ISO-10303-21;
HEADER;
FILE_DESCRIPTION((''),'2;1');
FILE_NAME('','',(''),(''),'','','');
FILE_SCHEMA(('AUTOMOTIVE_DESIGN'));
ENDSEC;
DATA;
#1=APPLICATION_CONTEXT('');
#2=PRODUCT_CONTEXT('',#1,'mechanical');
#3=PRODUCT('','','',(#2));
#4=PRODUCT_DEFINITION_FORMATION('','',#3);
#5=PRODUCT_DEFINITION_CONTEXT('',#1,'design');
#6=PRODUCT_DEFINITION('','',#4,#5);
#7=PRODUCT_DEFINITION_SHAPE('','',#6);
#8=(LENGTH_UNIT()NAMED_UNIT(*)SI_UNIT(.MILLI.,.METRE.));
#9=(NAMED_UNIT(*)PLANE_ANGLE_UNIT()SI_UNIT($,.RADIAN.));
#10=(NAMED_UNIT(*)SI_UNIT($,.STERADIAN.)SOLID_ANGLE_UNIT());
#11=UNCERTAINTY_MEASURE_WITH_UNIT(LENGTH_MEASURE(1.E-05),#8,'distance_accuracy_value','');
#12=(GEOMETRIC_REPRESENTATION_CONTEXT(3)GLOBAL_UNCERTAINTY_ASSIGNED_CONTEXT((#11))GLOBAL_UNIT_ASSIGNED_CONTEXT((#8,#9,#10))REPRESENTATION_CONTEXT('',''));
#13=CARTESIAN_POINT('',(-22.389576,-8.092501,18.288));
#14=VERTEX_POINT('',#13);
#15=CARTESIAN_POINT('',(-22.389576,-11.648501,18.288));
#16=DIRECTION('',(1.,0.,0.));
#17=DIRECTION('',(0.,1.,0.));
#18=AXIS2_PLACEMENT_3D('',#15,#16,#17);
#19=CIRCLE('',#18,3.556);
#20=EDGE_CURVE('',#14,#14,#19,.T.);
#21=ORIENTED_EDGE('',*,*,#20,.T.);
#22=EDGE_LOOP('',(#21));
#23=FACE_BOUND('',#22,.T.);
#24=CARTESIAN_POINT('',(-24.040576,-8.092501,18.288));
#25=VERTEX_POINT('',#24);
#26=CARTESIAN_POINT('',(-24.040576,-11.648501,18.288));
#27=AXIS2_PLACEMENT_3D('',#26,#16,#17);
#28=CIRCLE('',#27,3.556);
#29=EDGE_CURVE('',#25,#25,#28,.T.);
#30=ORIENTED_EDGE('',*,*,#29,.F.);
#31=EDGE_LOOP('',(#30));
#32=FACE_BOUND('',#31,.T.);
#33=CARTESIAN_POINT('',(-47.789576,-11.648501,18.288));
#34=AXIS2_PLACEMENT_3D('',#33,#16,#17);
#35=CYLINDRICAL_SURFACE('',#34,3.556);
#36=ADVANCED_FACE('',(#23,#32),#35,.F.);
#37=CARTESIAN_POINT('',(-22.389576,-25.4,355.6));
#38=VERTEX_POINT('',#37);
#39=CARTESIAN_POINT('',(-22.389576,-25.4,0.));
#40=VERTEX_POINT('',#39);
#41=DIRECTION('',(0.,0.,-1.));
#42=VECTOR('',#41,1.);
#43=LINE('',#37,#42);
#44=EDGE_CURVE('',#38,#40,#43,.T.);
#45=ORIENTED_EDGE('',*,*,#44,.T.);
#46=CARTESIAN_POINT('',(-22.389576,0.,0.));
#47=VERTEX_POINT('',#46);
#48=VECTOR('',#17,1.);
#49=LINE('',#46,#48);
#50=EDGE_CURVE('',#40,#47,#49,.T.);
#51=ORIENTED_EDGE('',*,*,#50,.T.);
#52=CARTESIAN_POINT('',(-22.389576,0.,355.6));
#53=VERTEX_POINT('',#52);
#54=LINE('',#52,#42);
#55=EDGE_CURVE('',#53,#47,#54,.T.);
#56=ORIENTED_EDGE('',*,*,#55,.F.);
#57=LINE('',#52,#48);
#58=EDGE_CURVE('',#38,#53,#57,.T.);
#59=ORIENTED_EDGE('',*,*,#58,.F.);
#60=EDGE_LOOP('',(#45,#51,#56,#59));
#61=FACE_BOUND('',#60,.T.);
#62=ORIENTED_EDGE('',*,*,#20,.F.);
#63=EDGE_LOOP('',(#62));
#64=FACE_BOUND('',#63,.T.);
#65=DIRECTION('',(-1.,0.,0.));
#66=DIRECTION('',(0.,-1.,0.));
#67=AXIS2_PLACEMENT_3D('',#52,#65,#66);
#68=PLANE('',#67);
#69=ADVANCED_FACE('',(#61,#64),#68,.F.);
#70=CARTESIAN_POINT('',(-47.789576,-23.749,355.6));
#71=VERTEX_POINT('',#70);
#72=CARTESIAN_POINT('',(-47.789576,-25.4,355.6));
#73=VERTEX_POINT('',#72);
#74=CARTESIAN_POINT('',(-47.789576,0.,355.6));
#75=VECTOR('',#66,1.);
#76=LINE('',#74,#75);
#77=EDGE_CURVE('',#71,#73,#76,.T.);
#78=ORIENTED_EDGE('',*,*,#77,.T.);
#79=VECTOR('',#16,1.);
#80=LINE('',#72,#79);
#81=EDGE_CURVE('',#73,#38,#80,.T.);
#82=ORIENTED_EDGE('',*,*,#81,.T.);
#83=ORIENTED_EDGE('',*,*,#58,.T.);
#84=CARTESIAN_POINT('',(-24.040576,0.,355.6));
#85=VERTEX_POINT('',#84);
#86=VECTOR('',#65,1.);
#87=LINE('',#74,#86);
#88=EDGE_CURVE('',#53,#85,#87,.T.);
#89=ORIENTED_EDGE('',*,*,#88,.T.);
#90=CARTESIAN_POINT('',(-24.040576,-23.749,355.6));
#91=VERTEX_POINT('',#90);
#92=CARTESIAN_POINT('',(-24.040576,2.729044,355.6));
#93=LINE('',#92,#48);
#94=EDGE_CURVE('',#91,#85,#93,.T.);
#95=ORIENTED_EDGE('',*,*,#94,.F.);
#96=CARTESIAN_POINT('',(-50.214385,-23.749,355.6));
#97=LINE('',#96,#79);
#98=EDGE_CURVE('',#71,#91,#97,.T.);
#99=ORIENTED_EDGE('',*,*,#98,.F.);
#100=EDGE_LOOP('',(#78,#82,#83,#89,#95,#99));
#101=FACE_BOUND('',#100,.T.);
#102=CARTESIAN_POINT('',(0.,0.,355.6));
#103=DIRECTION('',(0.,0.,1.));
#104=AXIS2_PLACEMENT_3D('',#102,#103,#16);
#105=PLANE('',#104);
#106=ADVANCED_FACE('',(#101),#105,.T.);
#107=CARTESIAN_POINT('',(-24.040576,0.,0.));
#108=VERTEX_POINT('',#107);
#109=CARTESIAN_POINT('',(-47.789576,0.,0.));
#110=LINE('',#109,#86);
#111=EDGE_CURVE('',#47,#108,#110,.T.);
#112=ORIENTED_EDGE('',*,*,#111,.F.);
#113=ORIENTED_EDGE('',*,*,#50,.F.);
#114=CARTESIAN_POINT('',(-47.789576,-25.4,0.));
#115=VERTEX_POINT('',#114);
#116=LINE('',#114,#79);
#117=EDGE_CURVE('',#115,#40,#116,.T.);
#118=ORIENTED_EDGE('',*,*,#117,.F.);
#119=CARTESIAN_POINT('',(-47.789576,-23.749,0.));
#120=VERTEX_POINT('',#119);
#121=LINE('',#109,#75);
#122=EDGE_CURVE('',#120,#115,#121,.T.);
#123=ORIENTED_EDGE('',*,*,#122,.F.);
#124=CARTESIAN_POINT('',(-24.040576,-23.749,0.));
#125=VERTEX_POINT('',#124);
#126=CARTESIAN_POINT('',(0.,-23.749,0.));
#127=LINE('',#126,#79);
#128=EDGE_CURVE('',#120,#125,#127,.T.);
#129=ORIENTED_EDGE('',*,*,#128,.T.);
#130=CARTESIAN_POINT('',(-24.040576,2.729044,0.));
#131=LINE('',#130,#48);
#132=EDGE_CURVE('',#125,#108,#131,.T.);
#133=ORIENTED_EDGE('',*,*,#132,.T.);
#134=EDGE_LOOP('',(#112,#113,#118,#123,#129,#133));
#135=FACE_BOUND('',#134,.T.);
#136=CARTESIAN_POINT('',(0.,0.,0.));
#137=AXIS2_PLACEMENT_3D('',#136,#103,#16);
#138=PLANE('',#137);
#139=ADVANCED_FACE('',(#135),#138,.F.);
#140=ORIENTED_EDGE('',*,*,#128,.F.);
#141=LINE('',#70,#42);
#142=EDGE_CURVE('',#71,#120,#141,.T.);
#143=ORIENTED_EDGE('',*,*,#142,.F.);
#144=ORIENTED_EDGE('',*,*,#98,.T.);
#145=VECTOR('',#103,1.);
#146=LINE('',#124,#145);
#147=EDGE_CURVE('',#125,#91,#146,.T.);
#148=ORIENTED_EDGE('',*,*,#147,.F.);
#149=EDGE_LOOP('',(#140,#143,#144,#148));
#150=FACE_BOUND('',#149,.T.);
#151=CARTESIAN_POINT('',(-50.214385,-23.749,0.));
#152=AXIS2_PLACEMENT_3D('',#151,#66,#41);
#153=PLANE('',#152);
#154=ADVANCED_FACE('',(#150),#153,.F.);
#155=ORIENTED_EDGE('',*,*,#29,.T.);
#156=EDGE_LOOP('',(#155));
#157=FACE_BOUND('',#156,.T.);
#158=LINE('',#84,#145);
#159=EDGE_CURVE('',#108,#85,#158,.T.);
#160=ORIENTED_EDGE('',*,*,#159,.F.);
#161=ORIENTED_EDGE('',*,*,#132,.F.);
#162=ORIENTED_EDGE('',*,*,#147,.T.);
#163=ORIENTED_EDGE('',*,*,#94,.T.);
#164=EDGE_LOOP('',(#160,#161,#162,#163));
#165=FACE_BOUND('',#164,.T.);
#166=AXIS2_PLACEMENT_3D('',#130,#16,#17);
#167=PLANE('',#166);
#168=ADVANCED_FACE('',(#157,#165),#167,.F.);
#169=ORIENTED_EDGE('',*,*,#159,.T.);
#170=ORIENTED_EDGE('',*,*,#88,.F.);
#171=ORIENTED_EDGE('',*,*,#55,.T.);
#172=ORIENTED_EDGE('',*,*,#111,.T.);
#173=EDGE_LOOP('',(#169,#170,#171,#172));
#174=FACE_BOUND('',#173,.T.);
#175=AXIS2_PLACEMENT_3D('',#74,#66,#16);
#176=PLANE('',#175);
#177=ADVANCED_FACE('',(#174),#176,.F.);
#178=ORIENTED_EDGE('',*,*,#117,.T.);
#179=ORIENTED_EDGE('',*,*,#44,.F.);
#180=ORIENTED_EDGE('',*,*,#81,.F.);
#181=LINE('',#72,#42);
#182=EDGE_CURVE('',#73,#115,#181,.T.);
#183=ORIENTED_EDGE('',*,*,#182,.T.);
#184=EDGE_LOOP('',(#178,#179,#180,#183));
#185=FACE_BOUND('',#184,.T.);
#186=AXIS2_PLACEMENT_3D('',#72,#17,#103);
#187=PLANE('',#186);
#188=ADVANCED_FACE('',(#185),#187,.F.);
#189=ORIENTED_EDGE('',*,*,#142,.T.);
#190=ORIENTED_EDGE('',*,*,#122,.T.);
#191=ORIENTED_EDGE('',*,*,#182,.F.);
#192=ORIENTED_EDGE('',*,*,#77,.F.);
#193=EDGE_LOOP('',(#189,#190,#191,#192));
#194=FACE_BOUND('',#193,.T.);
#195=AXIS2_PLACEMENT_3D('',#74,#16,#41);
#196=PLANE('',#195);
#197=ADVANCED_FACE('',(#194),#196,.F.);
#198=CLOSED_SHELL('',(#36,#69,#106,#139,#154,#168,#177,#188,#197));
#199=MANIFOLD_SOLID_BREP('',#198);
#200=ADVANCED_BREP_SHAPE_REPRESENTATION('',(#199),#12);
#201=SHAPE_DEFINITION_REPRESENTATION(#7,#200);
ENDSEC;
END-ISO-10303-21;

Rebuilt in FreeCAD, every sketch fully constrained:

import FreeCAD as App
import Part
import Sketcher
from FreeCAD import Vector
Q = App.Units.Quantity


def add_polygon(sketch, points):
    """Adds a closed chain of lines whose ends are joined by coincident constraints."""
    first, n = sketch.GeometryCount, len(points)
    for a, b in zip(points, points[1:] + points[:1]):
        sketch.addGeometry(Part.LineSegment(App.Vector(*a, 0), App.Vector(*b, 0)), False)
    for i in range(n):
        sketch.addConstraint(Sketcher.Constraint("Coincident", first + i, 2, first + (i + 1) % n, 1))

doc = App.newDocument("Part")
body = doc.addObject("PartDesign::Body", "Body")

sketch1 = doc.addObject("Sketcher::SketchObject", "Sketch")
body.addObject(sketch1)
sketch1.AttachmentSupport = (doc.XY_Plane, [""])
sketch1.MapMode = "FlatFace"
add_polygon(sketch1, [(-47.789576, 0), (-47.789576, -25.4), (-22.389576, -25.4), (-22.389576, 0)])
sketch1.addConstraint(Sketcher.Constraint("Vertical", 0))
sketch1.addConstraint(Sketcher.Constraint("Horizontal", 1))
sketch1.addConstraint(Sketcher.Constraint("Vertical", 2))
sketch1.addConstraint(Sketcher.Constraint("Horizontal", 3))
sketch1.addConstraint(Sketcher.Constraint("PointOnObject", 2, 2, -1))
sketch1.addConstraint(Sketcher.Constraint("Equal", 3, 0))
sketch1.addConstraint(Sketcher.Constraint("DistanceX", 1, 1, 1, 2, Q("1 in")))
sketch1.addConstraint(Sketcher.Constraint("DistanceX", 0, 2, -1, 1, 47.789576))
pad1 = doc.addObject("PartDesign::Pad", "Pad")
body.addObject(pad1)
pad1.Profile = sketch1
pad1.Length = Q("14 in")

sketch2 = doc.addObject("Sketcher::SketchObject", "Sketch001")
body.addObject(sketch2)
sketch2.AttachmentSupport = (doc.XY_Plane, [""])
sketch2.MapMode = "FlatFace"
sketch2.AttachmentOffset = App.Placement(Vector(0, 0, 14 * 25.4), App.Rotation())
add_polygon(sketch2, [(-50.214385, 2.729044), (-50.214385, -23.749), (-24.040576, -23.749), (-24.040576, 2.729044)])
sketch2.addConstraint(Sketcher.Constraint("Vertical", 0))
sketch2.addConstraint(Sketcher.Constraint("Horizontal", 1))
sketch2.addConstraint(Sketcher.Constraint("Vertical", 2))
sketch2.addConstraint(Sketcher.Constraint("Horizontal", 3))
sketch2.addConstraint(Sketcher.Constraint("DistanceY", 0, 2, -1, 1, Q("0.935 in")))
sketch2.addConstraint(Sketcher.Constraint("DistanceX", 1, 1, 1, 2, 26.17381))
sketch2.addConstraint(Sketcher.Constraint("DistanceY", 0, 2, 0, 1, 26.478044))
sketch2.addConstraint(Sketcher.Constraint("DistanceX", 0, 2, -1, 1, 50.214385))
pocket1 = doc.addObject("PartDesign::Pocket", "Pocket")
body.addObject(pocket1)
pocket1.Profile = sketch2
pocket1.Length = Q("14 in")

sketch3 = doc.addObject("Sketcher::SketchObject", "Sketch002")
body.addObject(sketch3)
sketch3.AttachmentSupport = (doc.YZ_Plane, [""])
sketch3.MapMode = "FlatFace"
sketch3.AttachmentOffset = App.Placement(Vector(0, 0, -22.389576), App.Rotation())
sketch3.addGeometry(Part.Circle(Vector(-11.648501, 18.288, 0), Vector(0, 0, 1), 3.556), False)
sketch3.addConstraint(Sketcher.Constraint("Diameter", 0, Q("0.28 in")))
sketch3.addConstraint(Sketcher.Constraint("DistanceY", -1, 1, 0, 3, Q("0.72 in")))
sketch3.addConstraint(Sketcher.Constraint("DistanceX", 0, 3, -1, 1, 11.648501))
pocket2 = doc.addObject("PartDesign::Pocket", "Pocket001")
body.addObject(pocket2)
pocket2.Profile = sketch3
pocket2.Type = "ThroughAll"

doc.recompute()
